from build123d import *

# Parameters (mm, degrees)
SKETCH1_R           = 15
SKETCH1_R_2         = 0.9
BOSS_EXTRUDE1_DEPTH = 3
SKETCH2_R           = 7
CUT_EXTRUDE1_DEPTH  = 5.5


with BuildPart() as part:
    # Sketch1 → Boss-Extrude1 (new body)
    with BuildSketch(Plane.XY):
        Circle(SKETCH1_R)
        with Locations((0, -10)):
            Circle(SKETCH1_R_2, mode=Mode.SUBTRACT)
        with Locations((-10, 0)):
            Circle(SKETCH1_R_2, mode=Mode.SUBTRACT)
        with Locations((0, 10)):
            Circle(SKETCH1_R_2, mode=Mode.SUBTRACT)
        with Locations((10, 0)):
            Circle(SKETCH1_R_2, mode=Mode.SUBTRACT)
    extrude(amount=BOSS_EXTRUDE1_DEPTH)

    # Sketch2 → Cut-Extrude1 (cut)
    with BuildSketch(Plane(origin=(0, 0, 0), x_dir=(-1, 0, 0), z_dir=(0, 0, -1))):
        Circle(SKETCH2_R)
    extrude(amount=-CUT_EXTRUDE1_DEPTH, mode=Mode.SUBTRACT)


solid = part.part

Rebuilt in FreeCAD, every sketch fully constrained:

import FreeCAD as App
import Part
import Sketcher

V = App.Vector
Q = App.Units.Quantity

doc = App.newDocument("Part")
body = doc.addObject("PartDesign::Body", "Body")

# Sketch on XY plane
sketch1 = body.newObject("Sketcher::SketchObject", "Sketch")
sketch1.AttachmentSupport = (doc.getObject("XY_Plane"), [""])
sketch1.MapMode = "FlatFace"
sketch1.addGeometry(Part.Circle(V(0, 0, 0), V(0, 0, 1), 15), False)
sketch1.addGeometry(Part.Circle(V(0, -10, 0), V(0, 0, 1), 0.9), False)
sketch1.addGeometry(Part.Circle(V(-10, 0, 0), V(0, 0, 1), 0.9), False)
sketch1.addGeometry(Part.Circle(V(10, 0, 0), V(0, 0, 1), 0.9), False)
sketch1.addGeometry(Part.Circle(V(0, 10, 0), V(0, 0, 1), 0.9), False)
sketch1.addConstraint(Sketcher.Constraint("Coincident", 0, 3, -1, 1))
sketch1.addConstraint(Sketcher.Constraint("Equal", 1, 2))
sketch1.addConstraint(Sketcher.Constraint("Equal", 2, 3))
sketch1.addConstraint(Sketcher.Constraint("Equal", 3, 4))
sketch1.addConstraint(Sketcher.Constraint("Symmetric", 2, 3, 3, 3, -1, 1))
sketch1.addConstraint(Sketcher.Constraint("Symmetric", 1, 3, 4, 3, -1, 1))
sketch1.addConstraint(Sketcher.Constraint("PointOnObject", 1, 3, -2))
sketch1.addConstraint(Sketcher.Constraint("PointOnObject", 2, 3, -1))
sketch1.addConstraint(Sketcher.Constraint("Diameter", 0, Q("30 mm")))
sketch1.addConstraint(Sketcher.Constraint("Diameter", 1, Q("1.8 mm")))
sketch1.addConstraint(Sketcher.Constraint("DistanceY", 1, 3, -1, 1, Q("10 mm")))
sketch1.addConstraint(Sketcher.Constraint("DistanceX", 2, 3, -1, 1, Q("10 mm")))
pad1 = body.newObject("PartDesign::Pad", "Pad")
pad1.Profile = sketch1
pad1.Length = 3

# Sketch on XY plane
sketch2 = body.newObject("Sketcher::SketchObject", "Sketch001")
sketch2.AttachmentSupport = (doc.getObject("XY_Plane"), [""])
sketch2.MapMode = "FlatFace"
sketch2.addGeometry(Part.Circle(V(0, 0, 0), V(0, 0, 1), 7), False)
sketch2.addConstraint(Sketcher.Constraint("Coincident", 0, 3, -1, 1))
sketch2.addConstraint(Sketcher.Constraint("Diameter", 0, Q("14 mm")))
pocket1 = body.newObject("PartDesign::Pocket", "Pocket")
pocket1.Profile = sketch2
pocket1.Length = 5.5
pocket1.Reversed = True

doc.recompute()
